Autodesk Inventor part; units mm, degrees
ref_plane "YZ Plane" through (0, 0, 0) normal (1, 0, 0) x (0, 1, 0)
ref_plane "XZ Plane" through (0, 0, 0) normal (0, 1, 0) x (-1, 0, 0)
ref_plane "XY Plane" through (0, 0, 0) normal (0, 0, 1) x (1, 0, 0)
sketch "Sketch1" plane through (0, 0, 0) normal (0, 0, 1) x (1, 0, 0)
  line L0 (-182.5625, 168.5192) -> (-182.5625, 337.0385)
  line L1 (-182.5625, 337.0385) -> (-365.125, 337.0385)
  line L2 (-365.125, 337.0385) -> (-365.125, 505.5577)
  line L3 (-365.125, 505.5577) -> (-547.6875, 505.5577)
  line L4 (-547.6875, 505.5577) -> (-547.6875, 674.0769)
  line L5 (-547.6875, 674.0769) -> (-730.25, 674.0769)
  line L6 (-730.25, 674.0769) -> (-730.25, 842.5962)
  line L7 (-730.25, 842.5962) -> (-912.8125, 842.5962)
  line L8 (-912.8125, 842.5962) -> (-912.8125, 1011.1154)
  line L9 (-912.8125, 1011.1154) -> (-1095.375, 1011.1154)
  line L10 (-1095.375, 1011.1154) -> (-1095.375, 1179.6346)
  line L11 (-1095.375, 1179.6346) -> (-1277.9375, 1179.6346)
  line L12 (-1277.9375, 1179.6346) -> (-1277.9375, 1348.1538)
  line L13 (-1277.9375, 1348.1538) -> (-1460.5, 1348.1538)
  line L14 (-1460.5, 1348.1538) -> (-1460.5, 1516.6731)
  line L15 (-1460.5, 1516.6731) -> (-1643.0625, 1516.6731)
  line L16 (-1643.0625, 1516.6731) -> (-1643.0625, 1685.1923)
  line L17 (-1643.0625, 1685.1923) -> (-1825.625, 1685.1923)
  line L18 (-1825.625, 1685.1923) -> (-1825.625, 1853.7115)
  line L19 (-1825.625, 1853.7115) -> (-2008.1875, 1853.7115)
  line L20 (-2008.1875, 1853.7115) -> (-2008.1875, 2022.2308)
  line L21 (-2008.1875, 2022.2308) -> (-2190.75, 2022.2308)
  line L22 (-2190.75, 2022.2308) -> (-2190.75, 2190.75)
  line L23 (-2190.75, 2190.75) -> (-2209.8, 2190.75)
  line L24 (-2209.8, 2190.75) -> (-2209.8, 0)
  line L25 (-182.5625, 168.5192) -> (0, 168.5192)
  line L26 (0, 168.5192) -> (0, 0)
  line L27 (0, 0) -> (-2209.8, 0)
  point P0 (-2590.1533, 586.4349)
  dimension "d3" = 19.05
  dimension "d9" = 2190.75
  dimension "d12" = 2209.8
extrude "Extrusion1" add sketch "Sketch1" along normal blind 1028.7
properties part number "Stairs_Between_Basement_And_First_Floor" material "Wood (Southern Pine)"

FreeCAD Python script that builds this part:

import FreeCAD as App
import Part
import Sketcher
Q = App.Units.Quantity

doc = App.newDocument("Part")
params = doc.addObject("Spreadsheet::Sheet", "Params")
for row, (alias, value) in enumerate([
    ("sketch1_width", "87 in"),
    ("sketch1_width2", "0.75 in"),
    ("sketch1_height", "86.25 in"),
    ("pad1_length", "40.5 in"),
], start=1):
    params.set(f"A{row}", alias)
    params.set(f"B{row}", "=" + value)
    params.setAlias(f"B{row}", alias)

body = doc.addObject("PartDesign::Body", "Body")

sketch1 = body.newObject("Sketcher::SketchObject", "Sketch")
sketch1.AttachmentSupport = (doc.getObject("XY_Plane"), [""])
sketch1.MapMode = "FlatFace"
sketch1.addGeometry([
    Part.LineSegment(App.Vector(0, 168.5192, 0), App.Vector(-182.5625, 168.5192, 0)),
    Part.LineSegment(App.Vector(-182.5625, 168.5192, 0), App.Vector(-182.5625, 337.0385, 0)),
    Part.LineSegment(App.Vector(-182.5625, 337.0385, 0), App.Vector(-365.125, 337.0385, 0)),
    Part.LineSegment(App.Vector(-365.125, 337.0385, 0), App.Vector(-365.125, 505.5577, 0)),
    Part.LineSegment(App.Vector(-365.125, 505.5577, 0), App.Vector(-547.6875, 505.5577, 0)),
    Part.LineSegment(App.Vector(-547.6875, 505.5577, 0), App.Vector(-547.6875, 674.0769, 0)),
    Part.LineSegment(App.Vector(-547.6875, 674.0769, 0), App.Vector(-730.25, 674.0769, 0)),
    Part.LineSegment(App.Vector(-730.25, 674.0769, 0), App.Vector(-730.25, 842.5962, 0)),
    Part.LineSegment(App.Vector(-730.25, 842.5962, 0), App.Vector(-912.8125, 842.5962, 0)),
    Part.LineSegment(App.Vector(-912.8125, 842.5962, 0), App.Vector(-912.8125, 1011.1154, 0)),
    Part.LineSegment(App.Vector(-912.8125, 1011.1154, 0), App.Vector(-1095.375, 1011.1154, 0)),
    Part.LineSegment(App.Vector(-1095.375, 1011.1154, 0), App.Vector(-1095.375, 1179.6346, 0)),
    Part.LineSegment(App.Vector(-1095.375, 1179.6346, 0), App.Vector(-1277.9375, 1179.6346, 0)),
    Part.LineSegment(App.Vector(-1277.9375, 1179.6346, 0), App.Vector(-1277.9375, 1348.1538, 0)),
    Part.LineSegment(App.Vector(-1277.9375, 1348.1538, 0), App.Vector(-1460.5, 1348.1538, 0)),
    Part.LineSegment(App.Vector(-1460.5, 1348.1538, 0), App.Vector(-1460.5, 1516.6731, 0)),
    Part.LineSegment(App.Vector(-1460.5, 1516.6731, 0), App.Vector(-1643.0625, 1516.6731, 0)),
    Part.LineSegment(App.Vector(-1643.0625, 1516.6731, 0), App.Vector(-1643.0625, 1685.1923, 0)),
    Part.LineSegment(App.Vector(-1643.0625, 1685.1923, 0), App.Vector(-1825.625, 1685.1923, 0)),
    Part.LineSegment(App.Vector(-1825.625, 1685.1923, 0), App.Vector(-1825.625, 1853.7115, 0)),
    Part.LineSegment(App.Vector(-1825.625, 1853.7115, 0), App.Vector(-2008.1875, 1853.7115, 0)),
    Part.LineSegment(App.Vector(-2008.1875, 1853.7115, 0), App.Vector(-2008.1875, 2022.2308, 0)),
    Part.LineSegment(App.Vector(-2008.1875, 2022.2308, 0), App.Vector(-2190.75, 2022.2308, 0)),
    Part.LineSegment(App.Vector(-2190.75, 2022.2308, 0), App.Vector(-2190.75, 2190.75, 0)),
    Part.LineSegment(App.Vector(-2190.75, 2190.75, 0), App.Vector(-2209.8, 2190.75, 0)),
    Part.LineSegment(App.Vector(-2209.8, 2190.75, 0), App.Vector(-2209.8, 0, 0)),
    Part.LineSegment(App.Vector(-2209.8, 0, 0), App.Vector(0, 0, 0)),
    Part.LineSegment(App.Vector(0, 0, 0), App.Vector(0, 168.5192, 0)),
], False)
sketch1.addConstraint([
    Sketcher.Constraint("Coincident", 0, 2, 1, 1),
    Sketcher.Constraint("Coincident", 1, 2, 2, 1),
    Sketcher.Constraint("Coincident", 2, 2, 3, 1),
    Sketcher.Constraint("Coincident", 3, 2, 4, 1),
    Sketcher.Constraint("Coincident", 4, 2, 5, 1),
    Sketcher.Constraint("Coincident", 5, 2, 6, 1),
    Sketcher.Constraint("Coincident", 6, 2, 7, 1),
    Sketcher.Constraint("Coincident", 7, 2, 8, 1),
    Sketcher.Constraint("Coincident", 8, 2, 9, 1),
    Sketcher.Constraint("Coincident", 9, 2, 10, 1),
    Sketcher.Constraint("Coincident", 10, 2, 11, 1),
    Sketcher.Constraint("Coincident", 11, 2, 12, 1),
    Sketcher.Constraint("Coincident", 12, 2, 13, 1),
    Sketcher.Constraint("Coincident", 13, 2, 14, 1),
    Sketcher.Constraint("Coincident", 14, 2, 15, 1),
    Sketcher.Constraint("Coincident", 15, 2, 16, 1),
    Sketcher.Constraint("Coincident", 16, 2, 17, 1),
    Sketcher.Constraint("Coincident", 17, 2, 18, 1),
    Sketcher.Constraint("Coincident", 18, 2, 19, 1),
    Sketcher.Constraint("Coincident", 19, 2, 20, 1),
    Sketcher.Constraint("Coincident", 20, 2, 21, 1),
    Sketcher.Constraint("Coincident", 21, 2, 22, 1),
    Sketcher.Constraint("Coincident", 22, 2, 23, 1),
    Sketcher.Constraint("Coincident", 23, 2, 24, 1),
    Sketcher.Constraint("Coincident", 24, 2, 25, 1),
    Sketcher.Constraint("Coincident", 25, 2, 26, 1),
    Sketcher.Constraint("Coincident", 26, 2, 27, 1),
    Sketcher.Constraint("Coincident", 27, 2, 0, 1),
    Sketcher.Constraint("Horizontal", 0),
    Sketcher.Constraint("Vertical", 1),
    Sketcher.Constraint("Horizontal", 2),
    Sketcher.Constraint("Vertical", 3),
    Sketcher.Constraint("Horizontal", 4),
    Sketcher.Constraint("Vertical", 5),
    Sketcher.Constraint("Horizontal", 6),
    Sketcher.Constraint("Vertical", 7),
    Sketcher.Constraint("Horizontal", 8),
    Sketcher.Constraint("Vertical", 9),
    Sketcher.Constraint("Horizontal", 10),
    Sketcher.Constraint("Vertical", 11),
    Sketcher.Constraint("Horizontal", 12),
    Sketcher.Constraint("Vertical", 13),
    Sketcher.Constraint("Horizontal", 14),
    Sketcher.Constraint("Vertical", 15),
    Sketcher.Constraint("Horizontal", 16),
    Sketcher.Constraint("Vertical", 17),
    Sketcher.Constraint("Horizontal", 18),
    Sketcher.Constraint("Vertical", 19),
    Sketcher.Constraint("Horizontal", 20),
    Sketcher.Constraint("Vertical", 21),
    Sketcher.Constraint("Horizontal", 22),
    Sketcher.Constraint("Vertical", 23),
    Sketcher.Constraint("Horizontal", 24),
    Sketcher.Constraint("Vertical", 25),
    Sketcher.Constraint("Horizontal", 26),
    Sketcher.Constraint("Vertical", 27),
    Sketcher.Constraint("Coincident", 26, 2, -1, 1),
    Sketcher.Constraint("Equal", 0, 2),
    Sketcher.Constraint("Equal", 2, 4),
    Sketcher.Constraint("Equal", 4, 6),
    Sketcher.Constraint("Equal", 6, 8),
    Sketcher.Constraint("Equal", 8, 10),
    Sketcher.Constraint("Equal", 10, 12),
    Sketcher.Constraint("Equal", 12, 14),
    Sketcher.Constraint("Equal", 14, 16),
    Sketcher.Constraint("Equal", 16, 18),
    Sketcher.Constraint("Equal", 18, 20),
    Sketcher.Constraint("Equal", 20, 22),
    Sketcher.Constraint("Equal", 1, 3),
    Sketcher.Constraint("Equal", 3, 5),
    Sketcher.Constraint("Equal", 5, 7),
    Sketcher.Constraint("Equal", 7, 9),
    Sketcher.Constraint("Equal", 9, 11),
    Sketcher.Constraint("Equal", 11, 13),
    Sketcher.Constraint("Equal", 13, 15),
    Sketcher.Constraint("Equal", 15, 17),
    Sketcher.Constraint("Equal", 17, 19),
    Sketcher.Constraint("Equal", 19, 21),
    Sketcher.Constraint("Equal", 21, 23),
    Sketcher.Constraint("Equal", 23, 27),
    Sketcher.Constraint("DistanceX", 26, 1, 26, 2, Q("87 in")),
    Sketcher.Constraint("DistanceX", 24, 2, 24, 1, Q("0.75 in")),
    Sketcher.Constraint("DistanceY", 25, 2, 25, 1, Q("86.25 in")),
])
sketch1.setExpression("Constraints[80]", "Params.sketch1_width")
sketch1.setExpression("Constraints[81]", "Params.sketch1_width2")
sketch1.setExpression("Constraints[82]", "Params.sketch1_height")
pad1 = body.newObject("PartDesign::Pad", "Pad")
pad1.Profile = sketch1
pad1.setExpression("Length", "Params.pad1_length")

doc.recompute()
